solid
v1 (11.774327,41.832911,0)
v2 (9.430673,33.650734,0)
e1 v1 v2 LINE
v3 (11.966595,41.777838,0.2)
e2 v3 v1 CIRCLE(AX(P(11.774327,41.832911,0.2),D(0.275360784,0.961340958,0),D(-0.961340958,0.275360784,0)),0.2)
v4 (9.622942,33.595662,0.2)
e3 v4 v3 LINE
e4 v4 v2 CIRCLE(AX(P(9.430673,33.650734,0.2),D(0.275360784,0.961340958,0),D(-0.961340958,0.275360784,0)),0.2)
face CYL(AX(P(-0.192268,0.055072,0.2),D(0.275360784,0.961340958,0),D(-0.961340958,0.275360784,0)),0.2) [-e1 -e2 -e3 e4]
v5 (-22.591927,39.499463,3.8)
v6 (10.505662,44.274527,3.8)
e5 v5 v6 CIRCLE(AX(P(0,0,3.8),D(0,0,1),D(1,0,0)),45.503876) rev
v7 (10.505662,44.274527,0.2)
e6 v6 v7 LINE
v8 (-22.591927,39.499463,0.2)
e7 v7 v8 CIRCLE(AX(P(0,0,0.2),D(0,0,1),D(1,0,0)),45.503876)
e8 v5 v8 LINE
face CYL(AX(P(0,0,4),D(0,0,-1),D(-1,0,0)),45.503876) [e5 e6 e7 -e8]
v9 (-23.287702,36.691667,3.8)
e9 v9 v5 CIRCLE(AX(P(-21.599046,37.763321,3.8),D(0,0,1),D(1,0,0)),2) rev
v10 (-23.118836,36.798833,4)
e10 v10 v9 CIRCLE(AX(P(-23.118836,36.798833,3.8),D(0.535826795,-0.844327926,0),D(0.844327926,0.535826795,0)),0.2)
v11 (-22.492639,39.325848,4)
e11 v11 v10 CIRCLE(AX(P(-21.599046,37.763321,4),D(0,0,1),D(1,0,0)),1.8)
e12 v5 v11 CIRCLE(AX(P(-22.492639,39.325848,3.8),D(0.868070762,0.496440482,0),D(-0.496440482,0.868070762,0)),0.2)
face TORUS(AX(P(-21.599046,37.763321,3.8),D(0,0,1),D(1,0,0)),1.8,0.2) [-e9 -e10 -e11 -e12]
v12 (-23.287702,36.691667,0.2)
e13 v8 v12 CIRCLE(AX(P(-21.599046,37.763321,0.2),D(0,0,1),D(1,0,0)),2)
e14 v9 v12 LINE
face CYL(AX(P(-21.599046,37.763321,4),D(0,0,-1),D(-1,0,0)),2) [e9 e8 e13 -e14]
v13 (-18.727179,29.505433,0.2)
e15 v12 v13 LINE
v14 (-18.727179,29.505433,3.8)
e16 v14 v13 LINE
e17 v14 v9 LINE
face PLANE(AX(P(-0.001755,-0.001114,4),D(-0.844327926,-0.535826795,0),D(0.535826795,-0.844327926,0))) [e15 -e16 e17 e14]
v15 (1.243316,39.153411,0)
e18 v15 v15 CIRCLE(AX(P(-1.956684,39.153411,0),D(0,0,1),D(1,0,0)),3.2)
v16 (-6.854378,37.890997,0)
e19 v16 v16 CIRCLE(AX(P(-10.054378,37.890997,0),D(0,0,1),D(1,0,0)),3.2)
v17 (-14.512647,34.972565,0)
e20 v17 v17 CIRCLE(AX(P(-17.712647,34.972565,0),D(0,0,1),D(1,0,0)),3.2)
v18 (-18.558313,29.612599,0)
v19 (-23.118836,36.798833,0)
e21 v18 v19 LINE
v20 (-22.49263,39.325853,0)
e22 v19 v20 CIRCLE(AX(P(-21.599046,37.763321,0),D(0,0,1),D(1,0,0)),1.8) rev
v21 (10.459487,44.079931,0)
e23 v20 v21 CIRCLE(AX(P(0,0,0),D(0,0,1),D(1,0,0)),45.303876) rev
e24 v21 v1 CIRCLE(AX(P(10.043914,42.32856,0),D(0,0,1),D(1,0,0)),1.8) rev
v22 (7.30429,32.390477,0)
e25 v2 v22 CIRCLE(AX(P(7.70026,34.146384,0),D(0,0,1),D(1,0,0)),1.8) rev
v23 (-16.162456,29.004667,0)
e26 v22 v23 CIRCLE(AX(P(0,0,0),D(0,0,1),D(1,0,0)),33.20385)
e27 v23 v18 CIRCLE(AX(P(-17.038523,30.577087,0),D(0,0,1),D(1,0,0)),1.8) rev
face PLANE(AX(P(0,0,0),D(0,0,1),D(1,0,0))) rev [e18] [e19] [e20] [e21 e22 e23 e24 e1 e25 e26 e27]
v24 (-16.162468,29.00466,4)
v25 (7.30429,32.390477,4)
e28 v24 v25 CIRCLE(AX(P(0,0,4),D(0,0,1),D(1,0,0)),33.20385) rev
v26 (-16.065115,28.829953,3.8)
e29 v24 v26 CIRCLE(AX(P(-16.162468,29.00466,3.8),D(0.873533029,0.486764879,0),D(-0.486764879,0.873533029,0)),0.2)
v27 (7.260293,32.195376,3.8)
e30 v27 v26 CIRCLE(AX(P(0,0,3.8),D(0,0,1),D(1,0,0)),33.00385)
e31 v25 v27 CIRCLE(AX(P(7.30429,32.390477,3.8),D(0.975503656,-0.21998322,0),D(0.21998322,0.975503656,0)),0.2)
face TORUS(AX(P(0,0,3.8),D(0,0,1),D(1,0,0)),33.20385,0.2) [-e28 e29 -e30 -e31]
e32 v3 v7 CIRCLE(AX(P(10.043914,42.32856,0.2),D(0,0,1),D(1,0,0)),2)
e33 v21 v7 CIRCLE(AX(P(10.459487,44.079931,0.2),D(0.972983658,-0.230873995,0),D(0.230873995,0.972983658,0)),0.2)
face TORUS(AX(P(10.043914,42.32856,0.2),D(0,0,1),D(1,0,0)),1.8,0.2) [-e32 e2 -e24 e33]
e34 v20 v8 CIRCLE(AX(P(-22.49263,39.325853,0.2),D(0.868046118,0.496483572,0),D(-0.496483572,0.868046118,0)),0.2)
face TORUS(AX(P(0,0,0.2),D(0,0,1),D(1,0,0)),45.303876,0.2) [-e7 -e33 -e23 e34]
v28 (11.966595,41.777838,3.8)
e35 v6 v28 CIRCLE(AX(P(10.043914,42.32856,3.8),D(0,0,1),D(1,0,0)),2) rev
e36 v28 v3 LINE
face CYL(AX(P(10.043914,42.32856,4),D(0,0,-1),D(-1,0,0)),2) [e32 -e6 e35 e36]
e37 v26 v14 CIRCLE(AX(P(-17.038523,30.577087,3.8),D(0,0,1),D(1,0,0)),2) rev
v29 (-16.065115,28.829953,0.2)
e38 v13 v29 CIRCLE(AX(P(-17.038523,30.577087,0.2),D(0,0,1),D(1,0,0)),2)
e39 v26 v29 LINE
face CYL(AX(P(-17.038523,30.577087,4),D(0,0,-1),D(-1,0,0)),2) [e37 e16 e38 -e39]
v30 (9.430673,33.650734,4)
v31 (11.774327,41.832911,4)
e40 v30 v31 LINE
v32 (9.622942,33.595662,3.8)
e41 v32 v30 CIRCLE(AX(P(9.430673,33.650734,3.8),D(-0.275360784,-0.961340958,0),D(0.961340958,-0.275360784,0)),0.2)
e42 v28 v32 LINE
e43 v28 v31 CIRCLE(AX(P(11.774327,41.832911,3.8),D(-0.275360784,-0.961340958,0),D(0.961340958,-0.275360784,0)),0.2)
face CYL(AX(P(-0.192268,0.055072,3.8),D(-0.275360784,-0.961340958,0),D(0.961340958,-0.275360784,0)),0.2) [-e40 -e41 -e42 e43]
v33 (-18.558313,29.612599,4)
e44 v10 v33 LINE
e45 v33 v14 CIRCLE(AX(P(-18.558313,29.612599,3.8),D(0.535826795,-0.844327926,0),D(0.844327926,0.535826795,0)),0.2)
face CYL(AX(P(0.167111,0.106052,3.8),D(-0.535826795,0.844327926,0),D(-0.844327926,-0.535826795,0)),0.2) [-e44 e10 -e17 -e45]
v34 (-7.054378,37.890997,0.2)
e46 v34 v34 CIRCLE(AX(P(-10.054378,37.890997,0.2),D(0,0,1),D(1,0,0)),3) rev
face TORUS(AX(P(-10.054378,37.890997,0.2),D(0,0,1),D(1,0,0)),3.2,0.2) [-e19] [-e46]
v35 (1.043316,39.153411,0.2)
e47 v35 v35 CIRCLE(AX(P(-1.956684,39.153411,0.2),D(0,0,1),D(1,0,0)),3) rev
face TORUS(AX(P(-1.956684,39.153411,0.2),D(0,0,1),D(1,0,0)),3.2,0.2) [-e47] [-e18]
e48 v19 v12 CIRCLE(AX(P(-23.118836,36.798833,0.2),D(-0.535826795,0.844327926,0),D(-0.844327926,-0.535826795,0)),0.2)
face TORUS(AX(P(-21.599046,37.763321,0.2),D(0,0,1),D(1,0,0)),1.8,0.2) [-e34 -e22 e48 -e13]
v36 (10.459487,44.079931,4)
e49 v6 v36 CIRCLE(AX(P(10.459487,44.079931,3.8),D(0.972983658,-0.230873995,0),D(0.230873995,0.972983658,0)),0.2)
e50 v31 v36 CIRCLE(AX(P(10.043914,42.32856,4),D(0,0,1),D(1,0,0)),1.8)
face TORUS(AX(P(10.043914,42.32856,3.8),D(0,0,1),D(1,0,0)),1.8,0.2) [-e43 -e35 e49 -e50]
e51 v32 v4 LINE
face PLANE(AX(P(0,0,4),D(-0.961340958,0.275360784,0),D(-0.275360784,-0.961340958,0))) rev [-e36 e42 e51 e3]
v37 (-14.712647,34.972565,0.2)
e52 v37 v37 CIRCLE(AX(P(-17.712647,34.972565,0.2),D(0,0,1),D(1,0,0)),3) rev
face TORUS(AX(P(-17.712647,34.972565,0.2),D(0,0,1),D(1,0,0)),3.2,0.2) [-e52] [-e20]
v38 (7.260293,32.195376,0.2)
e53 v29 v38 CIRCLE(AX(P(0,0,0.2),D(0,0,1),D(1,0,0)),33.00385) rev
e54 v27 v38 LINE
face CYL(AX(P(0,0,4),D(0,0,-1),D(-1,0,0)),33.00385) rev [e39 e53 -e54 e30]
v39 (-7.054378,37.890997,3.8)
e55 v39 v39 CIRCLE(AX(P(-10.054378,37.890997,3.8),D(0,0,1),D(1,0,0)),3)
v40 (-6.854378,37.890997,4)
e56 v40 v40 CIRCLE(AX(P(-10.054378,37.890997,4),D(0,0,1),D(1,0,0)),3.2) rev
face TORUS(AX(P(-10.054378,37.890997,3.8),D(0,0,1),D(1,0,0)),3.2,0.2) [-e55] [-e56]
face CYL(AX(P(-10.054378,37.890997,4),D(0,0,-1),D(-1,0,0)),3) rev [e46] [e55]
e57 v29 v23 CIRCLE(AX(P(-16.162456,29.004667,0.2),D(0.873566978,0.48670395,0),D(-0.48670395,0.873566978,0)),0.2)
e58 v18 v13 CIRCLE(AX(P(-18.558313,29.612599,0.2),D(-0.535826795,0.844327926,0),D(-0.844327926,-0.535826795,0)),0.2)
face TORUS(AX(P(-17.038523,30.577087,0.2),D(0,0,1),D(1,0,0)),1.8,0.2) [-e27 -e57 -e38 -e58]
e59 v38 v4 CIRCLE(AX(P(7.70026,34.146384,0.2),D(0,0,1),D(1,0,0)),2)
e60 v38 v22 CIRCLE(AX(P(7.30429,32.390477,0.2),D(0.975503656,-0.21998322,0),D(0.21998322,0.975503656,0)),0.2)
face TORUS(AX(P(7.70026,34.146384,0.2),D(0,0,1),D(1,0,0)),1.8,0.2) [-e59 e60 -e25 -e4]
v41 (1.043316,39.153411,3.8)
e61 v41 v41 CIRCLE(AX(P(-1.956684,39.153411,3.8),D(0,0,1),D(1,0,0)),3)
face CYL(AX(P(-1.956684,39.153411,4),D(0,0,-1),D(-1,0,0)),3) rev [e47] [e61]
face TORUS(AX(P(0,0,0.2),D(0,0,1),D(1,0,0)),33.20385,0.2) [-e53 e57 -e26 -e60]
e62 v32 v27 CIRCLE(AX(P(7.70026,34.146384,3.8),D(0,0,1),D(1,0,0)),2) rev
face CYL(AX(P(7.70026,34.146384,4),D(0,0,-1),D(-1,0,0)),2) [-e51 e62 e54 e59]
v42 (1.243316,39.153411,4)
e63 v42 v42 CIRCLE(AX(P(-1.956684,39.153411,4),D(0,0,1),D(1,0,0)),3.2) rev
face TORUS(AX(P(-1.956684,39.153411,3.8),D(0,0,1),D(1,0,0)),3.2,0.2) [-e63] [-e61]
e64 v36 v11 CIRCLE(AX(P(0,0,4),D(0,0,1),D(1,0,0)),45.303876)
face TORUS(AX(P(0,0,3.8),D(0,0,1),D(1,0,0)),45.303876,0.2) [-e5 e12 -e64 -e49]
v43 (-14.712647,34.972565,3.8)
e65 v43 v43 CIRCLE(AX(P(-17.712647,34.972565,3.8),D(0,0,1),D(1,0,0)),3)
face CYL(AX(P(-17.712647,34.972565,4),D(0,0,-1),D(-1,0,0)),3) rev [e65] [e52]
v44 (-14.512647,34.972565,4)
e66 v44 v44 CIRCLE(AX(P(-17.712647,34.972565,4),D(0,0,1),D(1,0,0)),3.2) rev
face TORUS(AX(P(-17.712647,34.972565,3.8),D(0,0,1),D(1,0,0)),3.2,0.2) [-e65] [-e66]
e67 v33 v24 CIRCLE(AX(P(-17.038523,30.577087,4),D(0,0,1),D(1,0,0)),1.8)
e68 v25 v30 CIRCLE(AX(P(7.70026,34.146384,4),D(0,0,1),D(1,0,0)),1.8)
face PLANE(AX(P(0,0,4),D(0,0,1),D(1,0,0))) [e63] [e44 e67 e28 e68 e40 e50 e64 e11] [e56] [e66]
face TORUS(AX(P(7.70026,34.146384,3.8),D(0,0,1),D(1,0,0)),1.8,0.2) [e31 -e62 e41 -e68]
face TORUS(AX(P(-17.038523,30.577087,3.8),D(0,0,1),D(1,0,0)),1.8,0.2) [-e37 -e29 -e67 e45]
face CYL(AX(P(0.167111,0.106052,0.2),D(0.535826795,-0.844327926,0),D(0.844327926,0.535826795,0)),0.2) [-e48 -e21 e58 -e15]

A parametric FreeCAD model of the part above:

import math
import FreeCAD as App
import Part
import Sketcher

V = App.Vector
Q = App.Units.Quantity


def edges_at(feature, points):
    """Names of the edges that pass closest to the given points."""
    edges = feature.Shape.Edges
    near = lambda p: min(range(len(edges)), key=lambda i: edges[i].distToShape(Part.Vertex(*p))[0])
    return sorted({f"Edge{near(p) + 1}" for p in points})

doc = App.newDocument("Part")
params = doc.addObject("Spreadsheet::Sheet", "Params")
for row, (alias, value) in enumerate([
    ("sketch1_diameter", "6 mm"),
    ("sketch1_radius", "2 mm"),
    ("pad1_length", "4 mm"),
    ("fillet_radius", "0.2 mm"),
], start=1):
    params.set(f"A{row}", alias)
    params.set(f"B{row}", "=" + value)
    params.setAlias(f"B{row}", alias)

body = doc.addObject("PartDesign::Body", "Body")

sketch1 = body.newObject("Sketcher::SketchObject", "Sketch")
sketch1.AttachmentSupport = (doc.getObject("XY_Plane"), [""])
sketch1.MapMode = "FlatFace"
sketch1.addGeometry([
    Part.LineSegment(V(9.6, 33.6, 0), V(12, 41.8, 0)),
    Part.ArcOfCircle(Part.Circle(V(10, 42.3, 0), V(0, 0, 1), 2), math.radians(-16), math.radians(77)),
    Part.ArcOfCircle(Part.Circle(V(0, 0, 0), V(0, 0, 1), 45.5), math.radians(77), math.radians(120)),
    Part.ArcOfCircle(Part.Circle(V(-21.6, 37.8, 0), V(0, 0, 1), 2), math.radians(120), math.radians(212)),
    Part.LineSegment(V(-23.3, 36.7, 0), V(-18.7, 29.5, 0)),
    Part.ArcOfCircle(Part.Circle(V(-17, 30.6, 0), V(0, 0, 1), 2), math.radians(-148), math.radians(-61)),
    Part.ArcOfCircle(Part.Circle(V(0, 0, 0), V(0, 0, 1), 33), math.radians(77), math.radians(119)),
    Part.ArcOfCircle(Part.Circle(V(7.7, 34.1, 0), V(0, 0, 1), 2), math.radians(-103), math.radians(-16)),
    Part.Circle(V(-17.7, 35, 0), V(0, 0, 1), 3),
    Part.Circle(V(-10.1, 37.9, 0), V(0, 0, 1), 3),
    Part.Circle(V(-2, 39.2, 0), V(0, 0, 1), 3),
], False)
sketch1.addConstraint([
    Sketcher.Constraint("Tangent", 0, 2, 1, 1),
    Sketcher.Constraint("Tangent", 1, 2, 2, 1),
    Sketcher.Constraint("Tangent", 2, 2, 3, 1),
    Sketcher.Constraint("Tangent", 3, 2, 4, 1),
    Sketcher.Constraint("Tangent", 4, 2, 5, 1),
    Sketcher.Constraint("Coincident", 5, 2, 6, 2),
    Sketcher.Constraint("Tangent", 6, 1, 7, 1),
    Sketcher.Constraint("Tangent", 7, 2, 0, 1),
    Sketcher.Constraint("Coincident", 2, 3, -1, 1),
    Sketcher.Constraint("Coincident", 6, 3, -1, 1),
    Sketcher.Constraint("Equal", 1, 3),
    Sketcher.Constraint("Equal", 3, 5),
    Sketcher.Constraint("Equal", 5, 7),
    Sketcher.Constraint("Equal", 8, 9),
    Sketcher.Constraint("Equal", 9, 10),
    Sketcher.Constraint("Diameter", 8, 6.0),
    Sketcher.Constraint("Radius", 1, 2.0),
    Sketcher.Constraint("Angle", 4, Q("-57.6 deg")),
    Sketcher.Constraint("Radius", 6, 33.00385),
    Sketcher.Constraint("Radius", 2, 45.503876),
    Sketcher.Constraint("DistanceY", 10, 3, 2, 2, 0.346),
    Sketcher.Constraint("DistanceX", 3, 2, -1, 1, 23.287702),
    Sketcher.Constraint("DistanceX", 3, 3, 8, 3, 3.886399),
    Sketcher.Constraint("DistanceX", 7, 3, 1, 2, 2.805402),
    Sketcher.Constraint("Distance", 0, 8.511212),
    Sketcher.Constraint("DistanceY", 5, 3, 8, 3, 4.395478),
    Sketcher.Constraint("DistanceX", 8, 3, 9, 3, 7.658269),
    Sketcher.Constraint("DistanceY", 8, 3, 9, 3, 2.918432),
    Sketcher.Constraint("DistanceX", 5, 3, 10, 3, 15.081839),
    Sketcher.Constraint("DistanceY", 5, 2, 4, 2, 0.67548),
])
sketch1.setExpression("Constraints[15]", "Params.sketch1_diameter")
sketch1.setExpression("Constraints[16]", "Params.sketch1_radius")
pad1 = body.newObject("PartDesign::Pad", "Pad")
pad1.Profile = sketch1
pad1.setExpression("Length", "Params.pad1_length")
doc.recompute()

fillet = body.newObject("PartDesign::Fillet", "Fillet")
fillet.Base = (pad1, edges_at(pad1, [
    (-13.054, 37.891, 4),
    (8.72, 32.426, 0),
    (-4.713, 32.666, 0),
    (-17.53, 28.639, 0),
    (-21.007, 33.099, 0),
    (-23.54, 38.244, 0),
    (-6.498, 45.038, 0),
    (11.77, 43.339, 0),
    (10.795, 37.687, 0),
    (-20.713, 34.973, 4),
    (-20.713, 34.973, 0),
    (-13.054, 37.891, 0),
    (-4.957, 39.153, 0),
    (10.795, 37.687, 4),
    (11.77, 43.339, 4),
    (-6.498, 45.038, 4),
    (-23.54, 38.244, 4),
    (-21.007, 33.099, 4),
    (-17.53, 28.639, 4),
    (-4.713, 32.666, 4),
    (8.72, 32.426, 4),
    (-4.957, 39.153, 4),
]))
fillet.setExpression("Radius", "Params.fillet_radius")

doc.recompute()
